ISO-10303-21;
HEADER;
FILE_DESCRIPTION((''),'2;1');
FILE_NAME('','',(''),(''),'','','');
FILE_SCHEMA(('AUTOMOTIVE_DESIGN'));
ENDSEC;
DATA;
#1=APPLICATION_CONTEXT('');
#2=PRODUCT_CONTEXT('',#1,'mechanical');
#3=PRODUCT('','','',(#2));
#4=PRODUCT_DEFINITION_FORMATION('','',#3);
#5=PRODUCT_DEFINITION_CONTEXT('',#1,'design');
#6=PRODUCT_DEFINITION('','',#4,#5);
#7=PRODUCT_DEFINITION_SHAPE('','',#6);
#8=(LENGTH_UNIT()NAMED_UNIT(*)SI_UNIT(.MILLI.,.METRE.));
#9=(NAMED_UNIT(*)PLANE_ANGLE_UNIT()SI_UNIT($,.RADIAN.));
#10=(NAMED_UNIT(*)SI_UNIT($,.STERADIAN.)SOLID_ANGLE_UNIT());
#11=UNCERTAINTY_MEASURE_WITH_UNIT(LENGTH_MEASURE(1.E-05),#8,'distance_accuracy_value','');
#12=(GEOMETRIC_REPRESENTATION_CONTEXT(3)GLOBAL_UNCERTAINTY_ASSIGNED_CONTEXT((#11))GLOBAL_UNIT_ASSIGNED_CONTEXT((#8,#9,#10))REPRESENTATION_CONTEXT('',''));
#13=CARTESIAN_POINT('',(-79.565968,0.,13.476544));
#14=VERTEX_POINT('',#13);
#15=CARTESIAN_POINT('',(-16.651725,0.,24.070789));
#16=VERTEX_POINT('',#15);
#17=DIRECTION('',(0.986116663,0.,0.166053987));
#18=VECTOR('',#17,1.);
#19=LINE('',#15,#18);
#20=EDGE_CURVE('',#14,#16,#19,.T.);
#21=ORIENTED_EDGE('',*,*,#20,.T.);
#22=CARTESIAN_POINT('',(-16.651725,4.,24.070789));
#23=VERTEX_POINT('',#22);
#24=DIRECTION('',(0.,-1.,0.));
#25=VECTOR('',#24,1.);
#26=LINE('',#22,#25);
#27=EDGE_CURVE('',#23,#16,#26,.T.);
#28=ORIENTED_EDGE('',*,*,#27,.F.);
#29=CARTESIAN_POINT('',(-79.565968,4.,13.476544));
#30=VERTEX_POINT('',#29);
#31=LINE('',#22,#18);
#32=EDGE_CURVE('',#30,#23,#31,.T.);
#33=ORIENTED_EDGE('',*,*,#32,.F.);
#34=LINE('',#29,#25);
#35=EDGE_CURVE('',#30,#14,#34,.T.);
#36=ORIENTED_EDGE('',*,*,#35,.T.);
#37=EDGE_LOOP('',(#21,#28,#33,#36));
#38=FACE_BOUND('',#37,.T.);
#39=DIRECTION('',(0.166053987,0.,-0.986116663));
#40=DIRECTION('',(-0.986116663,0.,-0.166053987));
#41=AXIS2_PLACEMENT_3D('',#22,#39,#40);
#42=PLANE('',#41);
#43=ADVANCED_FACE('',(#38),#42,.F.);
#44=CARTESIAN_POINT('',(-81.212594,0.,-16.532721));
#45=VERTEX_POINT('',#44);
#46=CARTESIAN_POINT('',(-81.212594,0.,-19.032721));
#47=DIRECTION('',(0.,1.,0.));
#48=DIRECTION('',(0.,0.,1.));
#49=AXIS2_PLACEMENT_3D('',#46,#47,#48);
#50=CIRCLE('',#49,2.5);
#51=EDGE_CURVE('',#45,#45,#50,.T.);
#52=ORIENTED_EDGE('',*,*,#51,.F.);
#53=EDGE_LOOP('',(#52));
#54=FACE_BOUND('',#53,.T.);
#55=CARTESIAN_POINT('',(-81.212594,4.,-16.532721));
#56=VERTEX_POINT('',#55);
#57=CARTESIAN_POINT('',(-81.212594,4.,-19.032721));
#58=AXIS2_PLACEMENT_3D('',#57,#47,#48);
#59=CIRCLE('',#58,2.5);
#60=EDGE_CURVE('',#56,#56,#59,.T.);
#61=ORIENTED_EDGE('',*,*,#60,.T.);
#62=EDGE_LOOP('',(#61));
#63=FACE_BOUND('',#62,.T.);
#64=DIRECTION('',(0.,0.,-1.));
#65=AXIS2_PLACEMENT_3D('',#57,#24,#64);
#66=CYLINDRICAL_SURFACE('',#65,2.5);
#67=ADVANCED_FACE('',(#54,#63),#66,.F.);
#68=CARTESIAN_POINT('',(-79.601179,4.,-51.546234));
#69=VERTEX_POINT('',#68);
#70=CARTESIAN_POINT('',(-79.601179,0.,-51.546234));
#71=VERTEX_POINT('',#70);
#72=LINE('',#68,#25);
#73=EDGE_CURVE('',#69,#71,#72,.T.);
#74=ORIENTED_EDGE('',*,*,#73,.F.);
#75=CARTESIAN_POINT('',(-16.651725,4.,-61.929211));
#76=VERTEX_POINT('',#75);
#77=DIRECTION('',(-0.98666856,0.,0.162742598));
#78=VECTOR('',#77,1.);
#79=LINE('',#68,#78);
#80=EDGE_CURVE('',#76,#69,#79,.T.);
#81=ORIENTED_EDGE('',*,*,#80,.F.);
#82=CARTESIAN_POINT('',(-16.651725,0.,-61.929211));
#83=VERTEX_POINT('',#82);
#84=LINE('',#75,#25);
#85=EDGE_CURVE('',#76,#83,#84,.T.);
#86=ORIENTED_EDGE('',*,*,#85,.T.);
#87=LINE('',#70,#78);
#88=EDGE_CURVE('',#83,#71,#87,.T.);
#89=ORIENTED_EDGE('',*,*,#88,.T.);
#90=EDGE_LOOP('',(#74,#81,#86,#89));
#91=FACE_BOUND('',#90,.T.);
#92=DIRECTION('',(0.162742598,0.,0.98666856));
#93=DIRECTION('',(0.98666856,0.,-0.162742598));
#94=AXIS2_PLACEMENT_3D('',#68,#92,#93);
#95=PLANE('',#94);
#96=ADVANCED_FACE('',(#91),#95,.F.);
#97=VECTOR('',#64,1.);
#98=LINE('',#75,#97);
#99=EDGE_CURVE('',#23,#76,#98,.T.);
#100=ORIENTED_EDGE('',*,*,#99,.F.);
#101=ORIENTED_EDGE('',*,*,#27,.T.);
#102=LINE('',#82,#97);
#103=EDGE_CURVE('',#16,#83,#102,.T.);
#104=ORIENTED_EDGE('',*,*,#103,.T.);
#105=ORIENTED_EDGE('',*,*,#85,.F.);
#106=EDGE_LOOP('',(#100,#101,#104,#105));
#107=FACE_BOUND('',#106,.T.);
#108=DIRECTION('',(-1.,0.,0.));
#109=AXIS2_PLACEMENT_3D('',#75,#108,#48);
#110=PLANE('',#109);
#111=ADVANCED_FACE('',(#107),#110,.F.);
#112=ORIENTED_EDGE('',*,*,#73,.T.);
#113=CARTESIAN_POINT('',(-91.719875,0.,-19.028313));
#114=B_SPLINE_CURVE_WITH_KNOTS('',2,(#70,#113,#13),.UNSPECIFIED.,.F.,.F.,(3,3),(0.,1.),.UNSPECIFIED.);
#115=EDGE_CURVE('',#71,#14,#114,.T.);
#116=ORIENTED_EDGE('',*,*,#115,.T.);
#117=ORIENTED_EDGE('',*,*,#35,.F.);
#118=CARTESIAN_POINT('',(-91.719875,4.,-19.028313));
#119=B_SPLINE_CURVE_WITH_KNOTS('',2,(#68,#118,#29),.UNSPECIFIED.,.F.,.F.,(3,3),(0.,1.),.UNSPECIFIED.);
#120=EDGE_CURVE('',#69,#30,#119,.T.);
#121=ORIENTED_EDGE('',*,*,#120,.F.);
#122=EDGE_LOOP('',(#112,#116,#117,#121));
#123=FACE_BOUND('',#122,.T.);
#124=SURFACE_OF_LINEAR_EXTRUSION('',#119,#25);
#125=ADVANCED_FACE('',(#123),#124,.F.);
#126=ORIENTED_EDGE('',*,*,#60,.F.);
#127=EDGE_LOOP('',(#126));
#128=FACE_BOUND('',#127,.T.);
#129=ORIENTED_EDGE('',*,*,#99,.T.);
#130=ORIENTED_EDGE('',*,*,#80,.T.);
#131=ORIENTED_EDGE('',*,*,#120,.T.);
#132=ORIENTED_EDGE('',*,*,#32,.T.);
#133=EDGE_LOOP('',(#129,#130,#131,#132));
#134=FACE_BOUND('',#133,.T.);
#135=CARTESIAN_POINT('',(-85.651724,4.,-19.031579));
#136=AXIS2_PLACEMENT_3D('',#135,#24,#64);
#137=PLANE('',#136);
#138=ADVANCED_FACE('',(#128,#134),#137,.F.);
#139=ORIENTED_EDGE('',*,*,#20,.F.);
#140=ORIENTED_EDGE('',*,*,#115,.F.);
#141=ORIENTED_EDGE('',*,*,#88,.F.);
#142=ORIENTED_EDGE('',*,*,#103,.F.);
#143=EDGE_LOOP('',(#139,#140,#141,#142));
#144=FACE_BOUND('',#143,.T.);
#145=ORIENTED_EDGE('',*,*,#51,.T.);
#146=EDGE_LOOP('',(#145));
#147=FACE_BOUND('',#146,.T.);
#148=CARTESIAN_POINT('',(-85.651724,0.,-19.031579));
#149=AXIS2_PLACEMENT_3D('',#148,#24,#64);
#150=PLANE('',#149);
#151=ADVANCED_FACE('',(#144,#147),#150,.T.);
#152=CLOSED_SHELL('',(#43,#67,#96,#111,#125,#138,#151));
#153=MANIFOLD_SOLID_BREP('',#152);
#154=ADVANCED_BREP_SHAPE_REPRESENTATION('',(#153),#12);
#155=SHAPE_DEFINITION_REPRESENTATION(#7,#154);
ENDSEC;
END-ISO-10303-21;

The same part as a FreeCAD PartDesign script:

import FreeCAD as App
import Part
import Sketcher
from FreeCAD import Vector
Q = App.Units.Quantity

doc = App.newDocument("Part")
body = doc.addObject("PartDesign::Body", "Body")

# Sketch on XZ plane
sketch1 = body.newObject("Sketcher::SketchObject", "Sketch")
sketch1.AttachmentSupport = (doc.getObject("XZ_Plane"), [""])
sketch1.MapMode = "FlatFace"
sketch1.addGeometry([
    Part.LineSegment(Vector(-16.651725, -61.929211, 0), Vector(-79.601179, -51.546234, 0)),  # 0
    Part.BSplineCurve([Vector(-79.601179, -51.546234, 0), Vector(-91.719875, -19.028313, 0), Vector(-79.565968, 13.476544, 0)], [3, 3], [0, 1], False, 2, [1, 1, 1], False),  # 1
    Part.LineSegment(Vector(-79.565968, 13.476544, 0), Vector(-16.651725, 24.070789, 0)),  # 2
    Part.LineSegment(Vector(-16.651725, 24.070789, 0), Vector(-16.651725, -61.929211, 0)),  # 3
    Part.Circle(Vector(-81.212594, -19.032721, 0), Vector(0, 0, 1), 2.5),  # 4
], False)
sketch1.addConstraint([
    Sketcher.Constraint("Block", 1),
    Sketcher.Constraint("Coincident", 0, 2, 1, 1),
    Sketcher.Constraint("Coincident", 1, 2, 2, 1),
    Sketcher.Constraint("Coincident", 2, 2, 3, 1),
    Sketcher.Constraint("Coincident", 3, 2, 0, 1),
    Sketcher.Constraint("Vertical", 3),
    Sketcher.Constraint("Equal", 0, 2),
    Sketcher.Constraint("Diameter", 4, Q("5 mm")),
    Sketcher.Constraint("DistanceY", 3, 2, 3, 1, Q("86 mm")),
    Sketcher.Constraint("Distance", 0, Q("63.8 mm")),
    Sketcher.Constraint("DistanceY", 4, 3, -1, 1, Q("19.032721 mm")),
    Sketcher.Constraint("DistanceX", 4, 3, 2, 2, Q("64.56087 mm")),
])
pad1 = body.newObject("PartDesign::Pad", "Pad")
pad1.Profile = sketch1
pad1.Length = 4
pad1.Reversed = True

doc.recompute()
